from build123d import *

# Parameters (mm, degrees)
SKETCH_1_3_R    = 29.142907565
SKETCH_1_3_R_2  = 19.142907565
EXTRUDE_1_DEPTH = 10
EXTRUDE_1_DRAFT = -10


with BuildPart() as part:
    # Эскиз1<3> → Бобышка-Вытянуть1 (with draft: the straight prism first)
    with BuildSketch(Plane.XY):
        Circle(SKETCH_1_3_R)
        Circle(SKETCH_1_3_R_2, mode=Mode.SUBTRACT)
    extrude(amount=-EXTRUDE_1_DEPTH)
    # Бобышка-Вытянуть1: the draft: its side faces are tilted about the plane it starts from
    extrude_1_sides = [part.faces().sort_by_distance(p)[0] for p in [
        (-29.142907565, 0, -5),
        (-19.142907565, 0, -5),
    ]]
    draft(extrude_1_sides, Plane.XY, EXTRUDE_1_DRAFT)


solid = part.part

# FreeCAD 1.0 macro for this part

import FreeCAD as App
import Part
import Sketcher
Q = App.Units.Quantity


def faces_at(feature, points):
    """Names of the faces that lie closest to the given points."""
    faces = feature.Shape.Faces
    near = lambda p: min(range(len(faces)), key=lambda i: faces[i].distToShape(Part.Vertex(*p))[0])
    return sorted({f"Face{near(p) + 1}" for p in points})

doc = App.newDocument("Part")
body = doc.addObject("PartDesign::Body", "Body")

sketch1 = body.newObject("Sketcher::SketchObject", "Sketch")
sketch1.AttachmentSupport = (doc.getObject("XY_Plane"), [""])
sketch1.MapMode = "FlatFace"
sketch1.addGeometry([
    Part.Circle(App.Vector(0, 0, 0), App.Vector(0, 0, 1), 29),
    Part.Circle(App.Vector(0, 0, 0), App.Vector(0, 0, 1), 19),
], False)
sketch1.addConstraint([
    Sketcher.Constraint("Coincident", 0, 3, -1, 1),
    Sketcher.Constraint("Coincident", 1, 3, -1, 1),
    Sketcher.Constraint("Diameter", 0, Q("58.285815 mm")),
    Sketcher.Constraint("Diameter", 1, Q("38.285815 mm")),
])
pad1 = body.newObject("PartDesign::Pad", "Pad")
pad1.Profile = sketch1
pad1.Length = 10
pad1.Reversed = True
doc.recompute()

draft = body.newObject("PartDesign::Draft", "Draft")
draft.Base = (pad1, faces_at(pad1, [(-29.143, 0, -5), (-19.143, 0, -5)]))
draft.NeutralPlane = (doc.getObject("XY_Plane"), [""])
draft.Angle = 10
draft.Reversed = True

doc.recompute()
